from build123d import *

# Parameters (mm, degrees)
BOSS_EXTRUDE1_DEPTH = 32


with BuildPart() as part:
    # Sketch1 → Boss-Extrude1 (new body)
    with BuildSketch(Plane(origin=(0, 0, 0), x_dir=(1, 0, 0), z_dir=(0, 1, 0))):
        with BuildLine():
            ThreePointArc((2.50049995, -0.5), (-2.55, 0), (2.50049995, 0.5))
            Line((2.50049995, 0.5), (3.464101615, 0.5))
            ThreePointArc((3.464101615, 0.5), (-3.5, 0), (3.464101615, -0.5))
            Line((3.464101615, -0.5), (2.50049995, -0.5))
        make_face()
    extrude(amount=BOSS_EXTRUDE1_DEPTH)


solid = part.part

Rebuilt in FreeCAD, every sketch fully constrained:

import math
import FreeCAD as App
import Part
import Sketcher

V = App.Vector
Q = App.Units.Quantity

doc = App.newDocument("Part")
body = doc.addObject("PartDesign::Body", "Body")

# Sketch on XZ plane
sketch1 = body.newObject("Sketcher::SketchObject", "Sketch")
sketch1.AttachmentSupport = (doc.getObject("XZ_Plane"), [""])
sketch1.MapMode = "FlatFace"
sketch1.addGeometry([
    Part.ArcOfCircle(Part.Circle(V(0, 0, 0), V(0, 0, 1), 2.5), math.radians(11), math.radians(349)),
    Part.LineSegment(V(2.5, -0.5, 0), V(3.5, -0.5, 0)),
    Part.ArcOfCircle(Part.Circle(V(0, 0, 0), V(0, 0, 1), 3.5), math.radians(8), math.radians(352)),
    Part.LineSegment(V(3.5, 0.5, 0), V(2.5, 0.5, 0)),
], False)
sketch1.addConstraint([
    Sketcher.Constraint("Coincident", 0, 2, 1, 1),
    Sketcher.Constraint("Coincident", 1, 2, 2, 2),
    Sketcher.Constraint("Coincident", 2, 1, 3, 1),
    Sketcher.Constraint("Coincident", 3, 2, 0, 1),
    Sketcher.Constraint("Horizontal", 1),
    Sketcher.Constraint("Horizontal", 3),
    Sketcher.Constraint("Coincident", 0, 3, -1, 1),
    Sketcher.Constraint("Coincident", 2, 3, -1, 1),
    Sketcher.Constraint("Vertical", 1, 2, 2, 1),
    Sketcher.Constraint("Radius", 2, Q("3.5 mm")),
    Sketcher.Constraint("Radius", 0, Q("2.55 mm")),
    Sketcher.Constraint("DistanceY", 1, 2, 2, 1, Q("1 mm")),
])
pad1 = body.newObject("PartDesign::Pad", "Pad")
pad1.Profile = sketch1
pad1.Length = 32
pad1.Reversed = True

doc.recompute()
